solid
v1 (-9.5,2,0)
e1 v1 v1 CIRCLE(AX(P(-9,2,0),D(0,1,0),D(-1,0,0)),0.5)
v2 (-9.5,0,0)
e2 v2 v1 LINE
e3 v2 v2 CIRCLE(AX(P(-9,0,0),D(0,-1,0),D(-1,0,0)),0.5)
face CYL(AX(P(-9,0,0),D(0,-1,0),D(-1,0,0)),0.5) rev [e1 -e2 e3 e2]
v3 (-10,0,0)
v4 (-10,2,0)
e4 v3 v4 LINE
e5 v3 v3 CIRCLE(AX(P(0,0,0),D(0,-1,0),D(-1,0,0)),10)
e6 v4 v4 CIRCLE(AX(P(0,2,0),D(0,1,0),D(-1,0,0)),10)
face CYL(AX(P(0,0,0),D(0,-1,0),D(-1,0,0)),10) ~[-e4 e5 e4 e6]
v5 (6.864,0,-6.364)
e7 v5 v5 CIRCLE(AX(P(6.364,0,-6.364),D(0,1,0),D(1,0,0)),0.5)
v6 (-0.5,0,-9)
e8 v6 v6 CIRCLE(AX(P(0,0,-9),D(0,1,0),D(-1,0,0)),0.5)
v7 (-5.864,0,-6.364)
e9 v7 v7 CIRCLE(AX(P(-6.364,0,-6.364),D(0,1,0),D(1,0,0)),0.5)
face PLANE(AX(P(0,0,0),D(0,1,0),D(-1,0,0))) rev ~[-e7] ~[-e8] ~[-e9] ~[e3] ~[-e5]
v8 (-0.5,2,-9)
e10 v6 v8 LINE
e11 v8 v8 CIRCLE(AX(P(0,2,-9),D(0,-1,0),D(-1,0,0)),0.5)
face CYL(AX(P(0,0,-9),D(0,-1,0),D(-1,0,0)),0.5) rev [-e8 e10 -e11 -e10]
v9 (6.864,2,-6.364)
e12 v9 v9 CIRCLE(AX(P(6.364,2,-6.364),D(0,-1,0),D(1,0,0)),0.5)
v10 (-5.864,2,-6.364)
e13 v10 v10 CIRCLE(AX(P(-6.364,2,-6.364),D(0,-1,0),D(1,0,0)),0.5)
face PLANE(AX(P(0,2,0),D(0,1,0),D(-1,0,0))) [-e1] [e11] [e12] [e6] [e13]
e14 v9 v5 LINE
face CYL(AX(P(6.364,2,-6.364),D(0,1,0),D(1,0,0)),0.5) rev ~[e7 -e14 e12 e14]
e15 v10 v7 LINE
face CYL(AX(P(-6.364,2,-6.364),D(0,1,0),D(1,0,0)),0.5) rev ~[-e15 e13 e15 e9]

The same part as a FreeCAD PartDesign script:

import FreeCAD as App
import Part
import Sketcher
Q = App.Units.Quantity

doc = App.newDocument("Part")
body = doc.addObject("PartDesign::Body", "Body")

sketch1 = body.newObject("Sketcher::SketchObject", "Sketch")
sketch1.AttachmentSupport = (doc.getObject("XZ_Plane"), [""])
sketch1.MapMode = "FlatFace"
sketch1.addGeometry([
    Part.Circle(App.Vector(0, 0, 0), App.Vector(0, 0, 1), 10),
    Part.Circle(App.Vector(-9, 0, 0), App.Vector(0, 0, 1), 0.5),
    Part.Circle(App.Vector(0, -9, 0), App.Vector(0, 0, 1), 0.5),
], False)
sketch1.addConstraint([
    Sketcher.Constraint("Coincident", 0, 3, -1, 1),
    Sketcher.Constraint("Equal", 1, 2),
    Sketcher.Constraint("PointOnObject", 1, 3, -1),
    Sketcher.Constraint("PointOnObject", 2, 3, -2),
    Sketcher.Constraint("Diameter", 0, Q("20 mm")),
    Sketcher.Constraint("Diameter", 1, Q("1 mm")),
    Sketcher.Constraint("DistanceX", 1, 3, -1, 1, Q("9 mm")),
    Sketcher.Constraint("DistanceY", 2, 3, -1, 1, Q("9 mm")),
])
pad1 = body.newObject("PartDesign::Pad", "Pad")
pad1.Profile = sketch1
pad1.Length = 2
pad1.Reversed = True

sketch2 = body.newObject("Sketcher::SketchObject", "Sketch001")
sketch2.AttachmentSupport = (doc.getObject("XZ_Plane"), [""])
sketch2.MapMode = "FlatFace"
sketch2.AttachmentOffset = App.Placement(App.Vector(0, 0, -2), App.Rotation())
sketch2.addGeometry(Part.Circle(App.Vector(-6.4, -6.4, 0), App.Vector(0, 0, 1), 0.5), False)
sketch2.addConstraint([
    Sketcher.Constraint("Diameter", 0, Q("1 mm")),
    Sketcher.Constraint("DistanceX", 0, 3, -1, 1, Q("6.364 mm")),
    Sketcher.Constraint("DistanceY", 0, 3, -1, 1, Q("6.364 mm")),
])
pocket1 = body.newObject("PartDesign::Pocket", "Pocket")
pocket1.Profile = sketch2
pocket1.Length = 10
pocket1.Reversed = True

sketch3 = body.newObject("Sketcher::SketchObject", "Sketch002")
sketch3.AttachmentSupport = (doc.getObject("XZ_Plane"), [""])
sketch3.MapMode = "FlatFace"
sketch3.AttachmentOffset = App.Placement(App.Vector(0, 0, -2), App.Rotation())
sketch3.addGeometry(Part.Circle(App.Vector(6.4, -6.4, 0), App.Vector(0, 0, 1), 0.5), False)
sketch3.addConstraint([
    Sketcher.Constraint("Diameter", 0, Q("1 mm")),
    Sketcher.Constraint("DistanceX", -1, 1, 0, 3, Q("6.364 mm")),
    Sketcher.Constraint("DistanceY", 0, 3, -1, 1, Q("6.364 mm")),
])
pocket2 = body.newObject("PartDesign::Pocket", "Pocket001")
pocket2.Profile = sketch3
pocket2.Length = 10
pocket2.Reversed = True

doc.recompute()
